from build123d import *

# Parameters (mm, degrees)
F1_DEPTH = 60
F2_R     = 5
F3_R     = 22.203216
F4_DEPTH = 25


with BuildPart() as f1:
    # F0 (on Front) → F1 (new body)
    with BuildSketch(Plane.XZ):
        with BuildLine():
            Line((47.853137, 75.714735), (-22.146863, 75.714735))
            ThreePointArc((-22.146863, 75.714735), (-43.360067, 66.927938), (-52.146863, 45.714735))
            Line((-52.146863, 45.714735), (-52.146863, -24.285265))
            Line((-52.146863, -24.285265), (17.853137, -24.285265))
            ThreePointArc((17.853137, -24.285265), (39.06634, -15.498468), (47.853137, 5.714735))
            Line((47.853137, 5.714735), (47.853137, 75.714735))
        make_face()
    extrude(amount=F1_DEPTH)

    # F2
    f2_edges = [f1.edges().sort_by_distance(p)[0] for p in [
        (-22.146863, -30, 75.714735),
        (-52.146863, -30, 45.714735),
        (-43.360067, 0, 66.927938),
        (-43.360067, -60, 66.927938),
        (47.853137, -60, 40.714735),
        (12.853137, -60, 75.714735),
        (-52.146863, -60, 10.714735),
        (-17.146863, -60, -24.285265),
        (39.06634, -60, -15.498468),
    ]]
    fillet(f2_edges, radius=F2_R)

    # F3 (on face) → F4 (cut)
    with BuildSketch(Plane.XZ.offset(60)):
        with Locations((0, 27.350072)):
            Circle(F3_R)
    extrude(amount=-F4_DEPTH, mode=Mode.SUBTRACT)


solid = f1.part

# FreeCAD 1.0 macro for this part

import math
import FreeCAD as App
import Part
import Sketcher

V = App.Vector


def edges_at(feature, points):
    """Names of the edges that pass closest to the given points."""
    edges = feature.Shape.Edges
    near = lambda p: min(range(len(edges)), key=lambda i: edges[i].distToShape(Part.Vertex(*p))[0])
    return sorted({f"Edge{near(p) + 1}" for p in points})

doc = App.newDocument("Part")
params = doc.addObject("Spreadsheet::Sheet", "Params")
for row, (alias, value) in enumerate([
    ("sketch1_radius", "30 mm"),
    ("sketch1_width", "70 mm"),
    ("pad1_length", "60 mm"),
    ("fillet_radius", "5 mm"),
    ("pocket1_length", "25 mm"),
], start=1):
    params.set(f"A{row}", alias)
    params.set(f"B{row}", "=" + value)
    params.setAlias(f"B{row}", alias)

body = doc.addObject("PartDesign::Body", "Body")

# Sketch on XZ plane
sketch1 = body.newObject("Sketcher::SketchObject", "Sketch")
sketch1.AttachmentSupport = (doc.getObject("XZ_Plane"), [""])
sketch1.MapMode = "FlatFace"
sketch1.addGeometry([
    Part.LineSegment(V(48, 76, 0), V(-22, 76, 0)),  # 0
    Part.ArcOfCircle(Part.Circle(V(-22, 46, 0), V(0, 0, 1), 30), math.radians(90), math.radians(180)),  # 1
    Part.LineSegment(V(-52, 46, 0), V(-52, -24, 0)),  # 2
    Part.LineSegment(V(-52, -24, 0), V(18, -24, 0)),  # 3
    Part.ArcOfCircle(Part.Circle(V(18, 6, 0), V(0, 0, 1), 30), math.radians(-90), math.radians(0)),  # 4
    Part.LineSegment(V(48, 6, 0), V(48, 76, 0)),  # 5
], False)
sketch1.addConstraint([
    Sketcher.Constraint("Tangent", 0, 2, 1, 1),
    Sketcher.Constraint("Tangent", 1, 2, 2, 1),
    Sketcher.Constraint("Coincident", 2, 2, 3, 1),
    Sketcher.Constraint("Tangent", 3, 2, 4, 1),
    Sketcher.Constraint("Tangent", 4, 2, 5, 1),
    Sketcher.Constraint("Coincident", 5, 2, 0, 1),
    Sketcher.Constraint("Horizontal", 0),
    Sketcher.Constraint("Vertical", 2),
    Sketcher.Constraint("Horizontal", 3),
    Sketcher.Constraint("Vertical", 5),
    Sketcher.Constraint("Equal", 1, 4),
    Sketcher.Constraint("Equal", 3, 2),
    Sketcher.Constraint("Radius", 1, 30.0),
    Sketcher.Constraint("DistanceX", 0, 2, 0, 1, 70.0),
    Sketcher.Constraint("DistanceX", 1, 3, -1, 1, 22.146863),
    Sketcher.Constraint("DistanceY", -1, 1, 1, 3, 45.714735),
])
sketch1.setExpression("Constraints[12]", "Params.sketch1_radius")
sketch1.setExpression("Constraints[13]", "Params.sketch1_width")
pad1 = body.newObject("PartDesign::Pad", "Pad")
pad1.Profile = sketch1
pad1.setExpression("Length", "Params.pad1_length")
doc.recompute()

fillet = body.newObject("PartDesign::Fillet", "Fillet")
fillet.Base = (pad1, edges_at(pad1, [
    (-22.147, -30, 75.715),
    (-52.147, -30, 45.715),
    (-43.36, 0, 66.928),
    (-43.36, -60, 66.928),
    (47.853, -60, 40.715),
    (12.853, -60, 75.715),
    (-52.147, -60, 10.715),
    (-17.147, -60, -24.285),
    (39.066, -60, -15.498),
]))
fillet.setExpression("Radius", "Params.fillet_radius")

# Sketch on XZ plane
sketch2 = body.newObject("Sketcher::SketchObject", "Sketch001")
sketch2.AttachmentSupport = (doc.getObject("XZ_Plane"), [""])
sketch2.MapMode = "FlatFace"
sketch2.AttachmentOffset = App.Placement(V(0, 0, 60), App.Rotation())
sketch2.addGeometry(Part.Circle(V(0, 27, 0), V(0, 0, 1), 22), False)
sketch2.addConstraint([
    Sketcher.Constraint("PointOnObject", 0, 3, -2),
    Sketcher.Constraint("Diameter", 0, 44.406432),
    Sketcher.Constraint("DistanceY", -1, 1, 0, 3, 27.350072),
])
pocket1 = body.newObject("PartDesign::Pocket", "Pocket")
pocket1.Profile = sketch2
pocket1.setExpression("Length", "Params.pocket1_length")

doc.recompute()
